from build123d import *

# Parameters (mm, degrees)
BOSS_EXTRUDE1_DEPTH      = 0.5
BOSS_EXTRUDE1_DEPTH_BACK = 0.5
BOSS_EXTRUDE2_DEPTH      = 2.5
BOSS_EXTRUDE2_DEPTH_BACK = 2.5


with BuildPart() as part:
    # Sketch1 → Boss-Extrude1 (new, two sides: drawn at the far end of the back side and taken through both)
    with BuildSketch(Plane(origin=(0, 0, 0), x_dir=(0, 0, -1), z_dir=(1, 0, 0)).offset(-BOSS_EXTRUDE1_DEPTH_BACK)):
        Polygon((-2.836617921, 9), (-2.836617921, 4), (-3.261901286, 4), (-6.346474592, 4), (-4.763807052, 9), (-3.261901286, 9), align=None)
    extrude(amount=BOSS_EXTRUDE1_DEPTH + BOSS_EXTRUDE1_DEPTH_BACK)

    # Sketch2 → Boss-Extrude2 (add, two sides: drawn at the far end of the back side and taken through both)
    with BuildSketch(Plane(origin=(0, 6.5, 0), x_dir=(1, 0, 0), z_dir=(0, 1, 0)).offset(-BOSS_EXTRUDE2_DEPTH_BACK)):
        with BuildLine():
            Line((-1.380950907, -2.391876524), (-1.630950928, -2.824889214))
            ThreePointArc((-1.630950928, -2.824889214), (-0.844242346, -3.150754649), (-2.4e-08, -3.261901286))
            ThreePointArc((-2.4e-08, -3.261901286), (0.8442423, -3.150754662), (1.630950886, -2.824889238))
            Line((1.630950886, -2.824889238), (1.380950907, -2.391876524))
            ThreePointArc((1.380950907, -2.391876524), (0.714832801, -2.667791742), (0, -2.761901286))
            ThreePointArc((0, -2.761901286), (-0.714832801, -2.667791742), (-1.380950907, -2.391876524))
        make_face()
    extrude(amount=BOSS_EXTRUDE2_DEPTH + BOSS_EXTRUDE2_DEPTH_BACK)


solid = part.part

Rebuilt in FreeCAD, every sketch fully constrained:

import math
import FreeCAD as App
import Part
import Sketcher
Q = App.Units.Quantity

doc = App.newDocument("Part")
body = doc.addObject("PartDesign::Body", "Body")

sketch1 = doc.addObject("Sketcher::SketchObject", "Sketch")
body.addObject(sketch1)
sketch1.AttachmentSupport = (doc.YZ_Plane, [""])
sketch1.MapMode = "FlatFace"
sketch1.addGeometry([
    Part.LineSegment(App.Vector(4, 2.8, 0), App.Vector(9, 2.8, 0)),
    Part.LineSegment(App.Vector(9, 2.8, 0), App.Vector(9, 4.8, 0)),
    Part.LineSegment(App.Vector(9, 4.8, 0), App.Vector(4, 6.3, 0)),
    Part.LineSegment(App.Vector(4, 6.3, 0), App.Vector(4, 2.8, 0)),
], False)
sketch1.addConstraint([
    Sketcher.Constraint("Coincident", 0, 2, 1, 1),
    Sketcher.Constraint("Coincident", 1, 2, 2, 1),
    Sketcher.Constraint("Coincident", 2, 2, 3, 1),
    Sketcher.Constraint("Coincident", 3, 2, 0, 1),
    Sketcher.Constraint("Horizontal", 0),
    Sketcher.Constraint("Vertical", 1),
    Sketcher.Constraint("Vertical", 3),
    Sketcher.Constraint("DistanceX", 0, 1, 0, 2, 5.0),
    Sketcher.Constraint("DistanceX", -1, 1, 0, 2, 9.0),
    Sketcher.Constraint("DistanceY", 1, 1, 1, 2, 1.927189),
    Sketcher.Constraint("DistanceY", 3, 2, 3, 1, 3.509857),
    Sketcher.Constraint("DistanceY", -1, 1, 0, 2, 2.836618),
])
pad1 = doc.addObject("PartDesign::Pad", "Pad")
body.addObject(pad1)
pad1.Profile = sketch1
pad1.Type = "TwoLengths"
pad1.Length = 0.5
pad1.Length2 = 0.5

sketch2 = doc.addObject("Sketcher::SketchObject", "Sketch001")
body.addObject(sketch2)
sketch2.AttachmentSupport = (doc.XZ_Plane, [""])
sketch2.MapMode = "FlatFace"
sketch2.AttachmentOffset = App.Placement(App.Vector(0, 0, -6.5), App.Rotation())
sketch2.addGeometry([
    Part.LineSegment(App.Vector(-1.38, 2.39, 0), App.Vector(-1.63, 2.82, 0)),
    Part.ArcOfCircle(Part.Circle(App.Vector(0, 0, 0), App.Vector(0, 0, 1), 3.26), math.radians(90), math.radians(120)),
    Part.ArcOfCircle(Part.Circle(App.Vector(0, 0, 0), App.Vector(0, 0, 1), 3.26), math.radians(60), math.radians(90)),
    Part.LineSegment(App.Vector(1.63, 2.82, 0), App.Vector(1.38, 2.39, 0)),
    Part.ArcOfCircle(Part.Circle(App.Vector(0, 0, 0), App.Vector(0, 0, 1), 2.76), math.radians(60), math.radians(90)),
    Part.ArcOfCircle(Part.Circle(App.Vector(0, 0, 0), App.Vector(0, 0, 1), 2.76), math.radians(90), math.radians(120)),
], False)
sketch2.addConstraint([
    Sketcher.Constraint("Coincident", 0, 2, 1, 2),
    Sketcher.Constraint("Tangent", 1, 1, 2, 2),
    Sketcher.Constraint("Coincident", 2, 1, 3, 1),
    Sketcher.Constraint("Coincident", 3, 2, 4, 1),
    Sketcher.Constraint("Tangent", 4, 2, 5, 1),
    Sketcher.Constraint("Coincident", 5, 2, 0, 1),
    Sketcher.Constraint("Coincident", 1, 3, -1, 1),
    Sketcher.Constraint("Coincident", 4, 3, -1, 1),
    Sketcher.Constraint("Equal", 1, 2),
    Sketcher.Constraint("Equal", 4, 5),
    Sketcher.Constraint("PointOnObject", 1, 1, -2),
    Sketcher.Constraint("PointOnObject", 4, 2, -2),
    Sketcher.Constraint("Horizontal", 0, 2, 2, 1),
    Sketcher.Constraint("Horizontal", 3, 2, 5, 2),
    Sketcher.Constraint("Angle", 0, Q("120.000003 deg")),
    Sketcher.Constraint("Distance", 0, 0.5),
    Sketcher.Constraint("Radius", 1, 3.261901),
    Sketcher.Constraint("DistanceX", 0, 2, -1, 1, 1.630951),
])
pad2 = doc.addObject("PartDesign::Pad", "Pad001")
body.addObject(pad2)
pad2.Profile = sketch2
pad2.Type = "TwoLengths"
pad2.Length = 2.5
pad2.Length2 = 2.5
pad2.Reversed = True

doc.recompute()
